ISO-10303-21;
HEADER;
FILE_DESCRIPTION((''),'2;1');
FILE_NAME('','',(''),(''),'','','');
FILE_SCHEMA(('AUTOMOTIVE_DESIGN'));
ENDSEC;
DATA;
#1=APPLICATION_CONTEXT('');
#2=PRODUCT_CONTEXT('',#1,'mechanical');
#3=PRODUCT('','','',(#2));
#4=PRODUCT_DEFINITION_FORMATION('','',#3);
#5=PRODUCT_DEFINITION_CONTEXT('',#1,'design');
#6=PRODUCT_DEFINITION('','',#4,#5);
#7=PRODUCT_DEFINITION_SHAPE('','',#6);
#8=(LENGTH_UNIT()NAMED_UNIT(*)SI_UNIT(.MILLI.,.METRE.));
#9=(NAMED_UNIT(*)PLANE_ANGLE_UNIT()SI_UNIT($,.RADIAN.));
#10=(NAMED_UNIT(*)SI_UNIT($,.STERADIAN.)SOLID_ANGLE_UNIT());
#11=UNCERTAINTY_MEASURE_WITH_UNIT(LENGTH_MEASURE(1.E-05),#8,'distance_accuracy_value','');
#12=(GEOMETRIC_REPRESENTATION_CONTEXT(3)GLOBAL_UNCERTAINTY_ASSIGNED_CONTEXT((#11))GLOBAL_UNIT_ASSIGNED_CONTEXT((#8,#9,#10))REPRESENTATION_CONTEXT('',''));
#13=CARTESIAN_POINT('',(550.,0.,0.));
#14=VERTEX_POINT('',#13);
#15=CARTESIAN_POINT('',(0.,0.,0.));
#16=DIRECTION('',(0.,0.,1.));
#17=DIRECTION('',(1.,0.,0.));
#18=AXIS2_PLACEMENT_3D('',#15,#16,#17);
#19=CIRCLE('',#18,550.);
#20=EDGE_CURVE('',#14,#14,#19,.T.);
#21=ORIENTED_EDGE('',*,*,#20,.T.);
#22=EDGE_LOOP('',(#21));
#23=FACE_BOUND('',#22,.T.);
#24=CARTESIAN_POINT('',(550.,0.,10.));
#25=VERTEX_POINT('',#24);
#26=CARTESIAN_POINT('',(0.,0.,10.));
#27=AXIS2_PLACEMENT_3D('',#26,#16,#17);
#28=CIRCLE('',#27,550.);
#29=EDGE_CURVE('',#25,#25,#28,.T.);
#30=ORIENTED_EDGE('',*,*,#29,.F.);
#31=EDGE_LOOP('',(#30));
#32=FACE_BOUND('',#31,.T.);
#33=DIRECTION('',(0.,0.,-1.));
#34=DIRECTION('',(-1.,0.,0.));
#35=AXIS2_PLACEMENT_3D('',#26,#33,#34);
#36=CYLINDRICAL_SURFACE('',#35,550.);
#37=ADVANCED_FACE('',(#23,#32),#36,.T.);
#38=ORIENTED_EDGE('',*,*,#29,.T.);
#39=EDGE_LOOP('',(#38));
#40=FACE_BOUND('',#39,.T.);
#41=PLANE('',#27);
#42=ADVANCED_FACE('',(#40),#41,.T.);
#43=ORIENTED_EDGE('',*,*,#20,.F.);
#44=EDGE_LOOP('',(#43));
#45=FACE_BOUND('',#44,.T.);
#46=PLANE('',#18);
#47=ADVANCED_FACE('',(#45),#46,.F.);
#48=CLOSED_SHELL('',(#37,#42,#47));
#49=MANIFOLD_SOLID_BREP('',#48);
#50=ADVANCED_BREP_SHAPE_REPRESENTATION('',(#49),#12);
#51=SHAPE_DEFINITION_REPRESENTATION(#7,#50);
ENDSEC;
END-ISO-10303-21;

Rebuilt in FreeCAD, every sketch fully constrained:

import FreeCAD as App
import Part
import Sketcher

doc = App.newDocument("Part")
body = doc.addObject("PartDesign::Body", "Body")

# Sketch on XY plane
sketch1 = body.newObject("Sketcher::SketchObject", "Sketch")
sketch1.AttachmentSupport = (doc.getObject("XY_Plane"), [""])
sketch1.MapMode = "FlatFace"
sketch1.addGeometry(Part.Circle(App.Vector(0, 0, 0), App.Vector(0, 0, 1), 550), False)
sketch1.addConstraint(Sketcher.Constraint("Coincident", 0, 3, -1, 1))
sketch1.addConstraint(Sketcher.Constraint("Diameter", 0, 1100.0))
pad1 = body.newObject("PartDesign::Pad", "Pad")
pad1.Profile = sketch1
pad1.Length = 10

doc.recompute()
